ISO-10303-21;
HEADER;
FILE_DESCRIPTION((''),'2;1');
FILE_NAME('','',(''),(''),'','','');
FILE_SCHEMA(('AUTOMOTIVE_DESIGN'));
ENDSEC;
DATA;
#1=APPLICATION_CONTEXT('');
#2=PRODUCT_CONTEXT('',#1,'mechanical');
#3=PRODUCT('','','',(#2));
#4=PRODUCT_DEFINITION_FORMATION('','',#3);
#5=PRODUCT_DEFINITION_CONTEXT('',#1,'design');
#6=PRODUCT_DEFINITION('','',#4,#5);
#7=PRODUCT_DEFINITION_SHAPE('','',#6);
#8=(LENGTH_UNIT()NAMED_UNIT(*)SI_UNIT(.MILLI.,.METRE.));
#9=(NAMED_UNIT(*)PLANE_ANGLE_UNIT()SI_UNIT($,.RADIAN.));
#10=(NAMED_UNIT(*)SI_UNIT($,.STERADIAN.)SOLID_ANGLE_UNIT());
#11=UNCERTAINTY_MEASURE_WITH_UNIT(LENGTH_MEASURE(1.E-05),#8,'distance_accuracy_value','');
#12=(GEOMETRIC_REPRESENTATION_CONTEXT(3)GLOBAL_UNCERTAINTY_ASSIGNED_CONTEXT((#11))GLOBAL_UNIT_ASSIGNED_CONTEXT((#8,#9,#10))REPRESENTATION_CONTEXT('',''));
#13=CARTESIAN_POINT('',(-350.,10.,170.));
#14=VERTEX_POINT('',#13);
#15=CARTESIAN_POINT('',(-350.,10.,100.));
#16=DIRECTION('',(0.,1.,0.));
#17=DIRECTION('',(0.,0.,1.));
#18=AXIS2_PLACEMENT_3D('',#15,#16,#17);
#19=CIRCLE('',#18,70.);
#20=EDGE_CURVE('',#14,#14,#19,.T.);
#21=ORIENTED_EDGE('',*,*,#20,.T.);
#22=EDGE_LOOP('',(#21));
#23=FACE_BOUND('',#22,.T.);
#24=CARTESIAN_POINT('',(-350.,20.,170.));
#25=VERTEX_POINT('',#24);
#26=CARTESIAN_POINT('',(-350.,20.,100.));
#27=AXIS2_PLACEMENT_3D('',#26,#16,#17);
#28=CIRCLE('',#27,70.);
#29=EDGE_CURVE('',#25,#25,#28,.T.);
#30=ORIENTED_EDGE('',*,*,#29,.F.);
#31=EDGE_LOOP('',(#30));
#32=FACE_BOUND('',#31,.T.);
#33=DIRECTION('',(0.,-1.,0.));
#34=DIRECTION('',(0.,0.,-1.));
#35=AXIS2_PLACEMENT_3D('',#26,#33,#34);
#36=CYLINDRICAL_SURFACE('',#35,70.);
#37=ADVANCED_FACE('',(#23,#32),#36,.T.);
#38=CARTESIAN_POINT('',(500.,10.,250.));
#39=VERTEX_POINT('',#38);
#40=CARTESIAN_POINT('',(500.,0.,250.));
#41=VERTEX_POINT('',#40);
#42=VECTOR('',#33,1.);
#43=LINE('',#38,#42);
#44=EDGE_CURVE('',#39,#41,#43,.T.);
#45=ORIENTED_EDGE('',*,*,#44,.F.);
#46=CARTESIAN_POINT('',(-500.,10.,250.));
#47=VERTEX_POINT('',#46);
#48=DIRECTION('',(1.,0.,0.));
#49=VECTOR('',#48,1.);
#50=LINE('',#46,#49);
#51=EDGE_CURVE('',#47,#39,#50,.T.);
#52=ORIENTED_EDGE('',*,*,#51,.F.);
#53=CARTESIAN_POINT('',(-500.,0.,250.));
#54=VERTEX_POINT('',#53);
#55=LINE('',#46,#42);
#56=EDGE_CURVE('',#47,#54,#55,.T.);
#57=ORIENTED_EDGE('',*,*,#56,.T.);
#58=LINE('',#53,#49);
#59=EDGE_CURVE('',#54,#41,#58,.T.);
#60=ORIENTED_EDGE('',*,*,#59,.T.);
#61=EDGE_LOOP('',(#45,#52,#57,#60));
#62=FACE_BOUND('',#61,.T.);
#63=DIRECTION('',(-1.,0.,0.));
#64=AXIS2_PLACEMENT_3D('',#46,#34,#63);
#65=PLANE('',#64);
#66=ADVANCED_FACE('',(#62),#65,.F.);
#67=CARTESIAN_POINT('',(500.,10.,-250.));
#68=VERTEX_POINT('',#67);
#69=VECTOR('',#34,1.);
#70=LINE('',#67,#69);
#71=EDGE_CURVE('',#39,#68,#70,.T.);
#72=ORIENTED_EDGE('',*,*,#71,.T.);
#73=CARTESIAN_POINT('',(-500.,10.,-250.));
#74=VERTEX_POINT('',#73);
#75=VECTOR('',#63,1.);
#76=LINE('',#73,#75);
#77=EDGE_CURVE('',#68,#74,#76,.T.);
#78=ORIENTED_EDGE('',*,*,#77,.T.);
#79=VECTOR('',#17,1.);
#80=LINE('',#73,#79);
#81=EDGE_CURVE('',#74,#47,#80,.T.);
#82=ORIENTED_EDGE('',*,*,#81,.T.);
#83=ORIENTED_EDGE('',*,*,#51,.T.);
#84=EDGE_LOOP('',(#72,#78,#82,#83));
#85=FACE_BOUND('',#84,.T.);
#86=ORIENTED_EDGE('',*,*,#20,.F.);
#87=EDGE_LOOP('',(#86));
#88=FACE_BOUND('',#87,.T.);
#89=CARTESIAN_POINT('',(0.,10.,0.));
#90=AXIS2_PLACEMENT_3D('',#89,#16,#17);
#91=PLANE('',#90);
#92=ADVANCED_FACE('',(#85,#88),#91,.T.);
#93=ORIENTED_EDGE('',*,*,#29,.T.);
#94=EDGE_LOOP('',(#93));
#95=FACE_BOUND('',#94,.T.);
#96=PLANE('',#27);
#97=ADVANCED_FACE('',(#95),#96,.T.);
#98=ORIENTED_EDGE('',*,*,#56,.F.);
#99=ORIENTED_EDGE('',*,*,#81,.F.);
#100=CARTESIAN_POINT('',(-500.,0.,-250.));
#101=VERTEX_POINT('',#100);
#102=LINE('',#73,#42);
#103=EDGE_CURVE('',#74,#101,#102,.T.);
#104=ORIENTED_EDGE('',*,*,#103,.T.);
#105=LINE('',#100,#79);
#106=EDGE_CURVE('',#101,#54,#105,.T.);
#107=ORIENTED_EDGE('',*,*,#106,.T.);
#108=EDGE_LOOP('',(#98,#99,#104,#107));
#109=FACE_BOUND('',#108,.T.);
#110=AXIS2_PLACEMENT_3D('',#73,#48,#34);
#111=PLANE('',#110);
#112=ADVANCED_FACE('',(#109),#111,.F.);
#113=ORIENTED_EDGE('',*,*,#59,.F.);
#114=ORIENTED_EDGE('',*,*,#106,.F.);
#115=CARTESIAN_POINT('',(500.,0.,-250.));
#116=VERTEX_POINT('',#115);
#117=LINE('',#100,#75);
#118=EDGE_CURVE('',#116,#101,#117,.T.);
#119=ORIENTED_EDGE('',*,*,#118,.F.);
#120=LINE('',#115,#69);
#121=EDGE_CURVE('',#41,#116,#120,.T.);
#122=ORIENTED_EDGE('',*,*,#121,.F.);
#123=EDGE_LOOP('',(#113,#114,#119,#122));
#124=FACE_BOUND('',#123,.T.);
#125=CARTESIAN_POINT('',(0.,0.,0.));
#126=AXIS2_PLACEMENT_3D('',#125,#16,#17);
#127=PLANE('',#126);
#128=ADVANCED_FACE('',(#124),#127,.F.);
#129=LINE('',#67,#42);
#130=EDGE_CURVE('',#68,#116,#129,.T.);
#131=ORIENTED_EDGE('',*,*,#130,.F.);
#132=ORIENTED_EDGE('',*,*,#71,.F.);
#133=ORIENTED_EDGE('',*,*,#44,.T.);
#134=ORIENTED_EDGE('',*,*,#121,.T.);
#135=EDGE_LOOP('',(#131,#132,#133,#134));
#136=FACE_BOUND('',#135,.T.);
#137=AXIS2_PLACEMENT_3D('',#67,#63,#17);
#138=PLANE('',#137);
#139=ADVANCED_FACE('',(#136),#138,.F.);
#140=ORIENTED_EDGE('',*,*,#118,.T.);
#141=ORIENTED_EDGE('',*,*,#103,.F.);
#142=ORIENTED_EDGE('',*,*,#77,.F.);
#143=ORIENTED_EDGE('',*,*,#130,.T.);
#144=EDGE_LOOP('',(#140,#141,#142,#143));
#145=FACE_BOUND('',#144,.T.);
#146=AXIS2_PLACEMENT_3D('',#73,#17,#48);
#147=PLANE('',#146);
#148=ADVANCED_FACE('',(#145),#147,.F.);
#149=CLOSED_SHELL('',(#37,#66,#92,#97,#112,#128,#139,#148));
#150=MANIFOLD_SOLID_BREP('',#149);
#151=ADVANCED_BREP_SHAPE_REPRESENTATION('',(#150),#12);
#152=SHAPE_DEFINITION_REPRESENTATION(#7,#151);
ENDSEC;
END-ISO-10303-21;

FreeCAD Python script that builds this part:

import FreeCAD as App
import Part
import Sketcher
from FreeCAD import Vector

doc = App.newDocument("Part")
body = doc.addObject("PartDesign::Body", "Body")

# Sketch on XZ plane
sketch1 = body.newObject("Sketcher::SketchObject", "Sketch")
sketch1.AttachmentSupport = (doc.getObject("XZ_Plane"), [""])
sketch1.MapMode = "FlatFace"
sketch1.addGeometry([
    Part.LineSegment(Vector(-500, -250, 0), Vector(-500, 250, 0)),
    Part.LineSegment(Vector(-500, 250, 0), Vector(500, 250, 0)),
    Part.LineSegment(Vector(500, 250, 0), Vector(500, -250, 0)),
    Part.LineSegment(Vector(500, -250, 0), Vector(-500, -250, 0)),
], False)
sketch1.addConstraint([
    Sketcher.Constraint("Coincident", 0, 2, 1, 1),
    Sketcher.Constraint("Coincident", 1, 2, 2, 1),
    Sketcher.Constraint("Coincident", 2, 2, 3, 1),
    Sketcher.Constraint("Coincident", 3, 2, 0, 1),
    Sketcher.Constraint("Vertical", 0),
    Sketcher.Constraint("Horizontal", 1),
    Sketcher.Constraint("Vertical", 2),
    Sketcher.Constraint("Horizontal", 3),
    Sketcher.Constraint("Symmetric", 0, 2, 2, 2, -1, 1),
    Sketcher.Constraint("DistanceX", 1, 1, 1, 2, 1000.0),
    Sketcher.Constraint("DistanceY", 0, 1, 0, 2, 500.0),
])
pad1 = body.newObject("PartDesign::Pad", "Pad")
pad1.Profile = sketch1
pad1.Length = 10
pad1.Reversed = True

# Sketch on XZ plane
sketch2 = body.newObject("Sketcher::SketchObject", "Sketch001")
sketch2.AttachmentSupport = (doc.getObject("XZ_Plane"), [""])
sketch2.MapMode = "FlatFace"
sketch2.AttachmentOffset = App.Placement(Vector(0, 0, -10), App.Rotation())
sketch2.addGeometry(Part.Circle(Vector(-350, 100, 0), Vector(0, 0, 1), 70), False)
sketch2.addConstraint([
    Sketcher.Constraint("Diameter", 0, 140.0),
    Sketcher.Constraint("DistanceX", 0, 3, -1, 1, 350.0),
    Sketcher.Constraint("DistanceY", -1, 1, 0, 3, 100.0),
])
pad2 = body.newObject("PartDesign::Pad", "Pad001")
pad2.Profile = sketch2
pad2.Length = 10
pad2.Reversed = True

doc.recompute()
